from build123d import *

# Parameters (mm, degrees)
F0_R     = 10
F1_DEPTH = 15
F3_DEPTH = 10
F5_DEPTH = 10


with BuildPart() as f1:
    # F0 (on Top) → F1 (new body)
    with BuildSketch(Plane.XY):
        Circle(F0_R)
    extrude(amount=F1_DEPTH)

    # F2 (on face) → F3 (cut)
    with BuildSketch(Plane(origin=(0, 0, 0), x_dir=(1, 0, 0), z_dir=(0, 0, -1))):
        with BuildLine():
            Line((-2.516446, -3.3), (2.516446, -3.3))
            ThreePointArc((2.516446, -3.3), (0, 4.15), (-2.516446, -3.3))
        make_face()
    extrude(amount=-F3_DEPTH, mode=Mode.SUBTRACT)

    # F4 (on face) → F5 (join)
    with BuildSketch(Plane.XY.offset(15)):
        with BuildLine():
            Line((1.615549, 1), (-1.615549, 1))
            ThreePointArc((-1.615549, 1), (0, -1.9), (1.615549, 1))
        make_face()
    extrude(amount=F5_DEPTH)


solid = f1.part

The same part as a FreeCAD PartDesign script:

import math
import FreeCAD as App
import Part
import Sketcher
Q = App.Units.Quantity

doc = App.newDocument("Part")
body = doc.addObject("PartDesign::Body", "Body")

# Sketch on XY plane
sketch1 = body.newObject("Sketcher::SketchObject", "Sketch")
sketch1.AttachmentSupport = (doc.getObject("XY_Plane"), [""])
sketch1.MapMode = "FlatFace"
sketch1.addGeometry(Part.Circle(App.Vector(0, 0, 0), App.Vector(0, 0, 1), 10), False)
sketch1.addConstraint([
    Sketcher.Constraint("Coincident", 0, 3, -1, 1),
    Sketcher.Constraint("Diameter", 0, Q("20 mm")),
])
pad1 = body.newObject("PartDesign::Pad", "Pad")
pad1.Profile = sketch1
pad1.Length = 15

# Sketch on XY plane
sketch2 = body.newObject("Sketcher::SketchObject", "Sketch001")
sketch2.AttachmentSupport = (doc.getObject("XY_Plane"), [""])
sketch2.MapMode = "FlatFace"
sketch2.addGeometry([
    Part.LineSegment(App.Vector(-2.5, 3.3, 0), App.Vector(2.5, 3.3, 0)),
    Part.ArcOfCircle(Part.Circle(App.Vector(0, 0, 0), App.Vector(0, 0, 1), 4.2), math.radians(127), math.radians(413)),
], False)
sketch2.addConstraint([
    Sketcher.Constraint("Coincident", 0, 1, 1, 1),
    Sketcher.Constraint("Coincident", 1, 2, 0, 2),
    Sketcher.Constraint("Horizontal", 0),
    Sketcher.Constraint("Coincident", 1, 3, -1, 1),
    Sketcher.Constraint("Radius", 1, Q("4.15 mm")),
    Sketcher.Constraint("DistanceY", -1, 1, 0, 1, Q("3.3 mm")),
])
pocket1 = body.newObject("PartDesign::Pocket", "Pocket")
pocket1.Profile = sketch2
pocket1.Length = 10
pocket1.Reversed = True

# Sketch on XY plane
sketch3 = body.newObject("Sketcher::SketchObject", "Sketch002")
sketch3.AttachmentSupport = (doc.getObject("XY_Plane"), [""])
sketch3.MapMode = "FlatFace"
sketch3.AttachmentOffset = App.Placement(App.Vector(0, 0, 15), App.Rotation())
sketch3.addGeometry([
    Part.LineSegment(App.Vector(1.6, 1, 0), App.Vector(-1.6, 1, 0)),
    Part.ArcOfCircle(Part.Circle(App.Vector(0, 0, 0), App.Vector(0, 0, 1), 1.9), math.radians(148), math.radians(392)),
], False)
sketch3.addConstraint([
    Sketcher.Constraint("Coincident", 0, 1, 1, 2),
    Sketcher.Constraint("Coincident", 1, 1, 0, 2),
    Sketcher.Constraint("Horizontal", 0),
    Sketcher.Constraint("Coincident", 1, 3, -1, 1),
    Sketcher.Constraint("Radius", 1, Q("1.9 mm")),
    Sketcher.Constraint("DistanceY", -1, 1, 0, 1, Q("1 mm")),
])
pad2 = body.newObject("PartDesign::Pad", "Pad001")
pad2.Profile = sketch3
pad2.Length = 10

doc.recompute()
